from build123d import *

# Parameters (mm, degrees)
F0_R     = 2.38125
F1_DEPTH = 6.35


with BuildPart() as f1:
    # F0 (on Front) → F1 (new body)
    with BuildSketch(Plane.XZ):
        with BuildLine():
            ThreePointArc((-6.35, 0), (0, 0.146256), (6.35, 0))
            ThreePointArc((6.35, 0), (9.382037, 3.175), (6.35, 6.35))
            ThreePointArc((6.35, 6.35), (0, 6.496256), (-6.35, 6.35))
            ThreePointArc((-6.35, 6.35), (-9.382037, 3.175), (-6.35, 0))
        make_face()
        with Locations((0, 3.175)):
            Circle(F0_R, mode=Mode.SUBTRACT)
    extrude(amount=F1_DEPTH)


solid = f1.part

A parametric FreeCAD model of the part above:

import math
import FreeCAD as App
import Part
import Sketcher
from FreeCAD import Vector
Q = App.Units.Quantity

doc = App.newDocument("Part")
body = doc.addObject("PartDesign::Body", "Body")

sketch1 = body.newObject("Sketcher::SketchObject", "Sketch")
sketch1.AttachmentSupport = (doc.getObject("XZ_Plane"), [""])
sketch1.MapMode = "FlatFace"
sketch1.addGeometry(Part.ArcOfCircle(Part.Circle(Vector(0, -137.8, 0), Vector(0, 0, 1), 137.9), math.radians(87.36), math.radians(92.64)), False)
sketch1.addGeometry(Part.ArcOfCircle(Part.Circle(Vector(6.2, 3.2, 0), Vector(0, 0, 1), 3.2), math.radians(-87), math.radians(87)), False)
sketch1.addGeometry(Part.ArcOfCircle(Part.Circle(Vector(0, -131.4, 0), Vector(0, 0, 1), 137.9), math.radians(87.36), math.radians(92.64)), False)
sketch1.addGeometry(Part.ArcOfCircle(Part.Circle(Vector(-6.2, 3.2, 0), Vector(0, 0, 1), 3.2), math.radians(93), math.radians(267)), False)
sketch1.addGeometry(Part.Circle(Vector(0, 3.2, 0), Vector(0, 0, 1), 2.4), False)
sketch1.addConstraint(Sketcher.Constraint("Coincident", 0, 1, 1, 1))
sketch1.addConstraint(Sketcher.Constraint("Tangent", 1, 2, 2, 1))
sketch1.addConstraint(Sketcher.Constraint("Tangent", 2, 2, 3, 1))
sketch1.addConstraint(Sketcher.Constraint("Coincident", 3, 2, 0, 2))
sketch1.addConstraint(Sketcher.Constraint("Equal", 0, 2))
sketch1.addConstraint(Sketcher.Constraint("Equal", 1, 3))
sketch1.addConstraint(Sketcher.Constraint("Symmetric", 0, 1, 3, 2, -1, 1))
sketch1.addConstraint(Sketcher.Constraint("Symmetric", 1, 3, 3, 3, -2))
sketch1.addConstraint(Sketcher.Constraint("PointOnObject", 4, 3, -2))
sketch1.addConstraint(Sketcher.Constraint("Horizontal", 3, 3, 4, 3))
sketch1.addConstraint(Sketcher.Constraint("Vertical", 0, 1, 1, 2))
sketch1.addConstraint(Sketcher.Constraint("Diameter", 4, Q("0.1875 in")))
sketch1.addConstraint(Sketcher.Constraint("DistanceX", 2, 2, 1, 2, Q("0.5 in")))
sketch1.addConstraint(Sketcher.Constraint("DistanceY", -1, 1, 1, 2, Q("0.25 in")))
sketch1.addConstraint(Sketcher.Constraint("Radius", 0, 137.922174))
pad1 = body.newObject("PartDesign::Pad", "Pad")
pad1.Profile = sketch1
pad1.Length = Q("0.25 in")

doc.recompute()
